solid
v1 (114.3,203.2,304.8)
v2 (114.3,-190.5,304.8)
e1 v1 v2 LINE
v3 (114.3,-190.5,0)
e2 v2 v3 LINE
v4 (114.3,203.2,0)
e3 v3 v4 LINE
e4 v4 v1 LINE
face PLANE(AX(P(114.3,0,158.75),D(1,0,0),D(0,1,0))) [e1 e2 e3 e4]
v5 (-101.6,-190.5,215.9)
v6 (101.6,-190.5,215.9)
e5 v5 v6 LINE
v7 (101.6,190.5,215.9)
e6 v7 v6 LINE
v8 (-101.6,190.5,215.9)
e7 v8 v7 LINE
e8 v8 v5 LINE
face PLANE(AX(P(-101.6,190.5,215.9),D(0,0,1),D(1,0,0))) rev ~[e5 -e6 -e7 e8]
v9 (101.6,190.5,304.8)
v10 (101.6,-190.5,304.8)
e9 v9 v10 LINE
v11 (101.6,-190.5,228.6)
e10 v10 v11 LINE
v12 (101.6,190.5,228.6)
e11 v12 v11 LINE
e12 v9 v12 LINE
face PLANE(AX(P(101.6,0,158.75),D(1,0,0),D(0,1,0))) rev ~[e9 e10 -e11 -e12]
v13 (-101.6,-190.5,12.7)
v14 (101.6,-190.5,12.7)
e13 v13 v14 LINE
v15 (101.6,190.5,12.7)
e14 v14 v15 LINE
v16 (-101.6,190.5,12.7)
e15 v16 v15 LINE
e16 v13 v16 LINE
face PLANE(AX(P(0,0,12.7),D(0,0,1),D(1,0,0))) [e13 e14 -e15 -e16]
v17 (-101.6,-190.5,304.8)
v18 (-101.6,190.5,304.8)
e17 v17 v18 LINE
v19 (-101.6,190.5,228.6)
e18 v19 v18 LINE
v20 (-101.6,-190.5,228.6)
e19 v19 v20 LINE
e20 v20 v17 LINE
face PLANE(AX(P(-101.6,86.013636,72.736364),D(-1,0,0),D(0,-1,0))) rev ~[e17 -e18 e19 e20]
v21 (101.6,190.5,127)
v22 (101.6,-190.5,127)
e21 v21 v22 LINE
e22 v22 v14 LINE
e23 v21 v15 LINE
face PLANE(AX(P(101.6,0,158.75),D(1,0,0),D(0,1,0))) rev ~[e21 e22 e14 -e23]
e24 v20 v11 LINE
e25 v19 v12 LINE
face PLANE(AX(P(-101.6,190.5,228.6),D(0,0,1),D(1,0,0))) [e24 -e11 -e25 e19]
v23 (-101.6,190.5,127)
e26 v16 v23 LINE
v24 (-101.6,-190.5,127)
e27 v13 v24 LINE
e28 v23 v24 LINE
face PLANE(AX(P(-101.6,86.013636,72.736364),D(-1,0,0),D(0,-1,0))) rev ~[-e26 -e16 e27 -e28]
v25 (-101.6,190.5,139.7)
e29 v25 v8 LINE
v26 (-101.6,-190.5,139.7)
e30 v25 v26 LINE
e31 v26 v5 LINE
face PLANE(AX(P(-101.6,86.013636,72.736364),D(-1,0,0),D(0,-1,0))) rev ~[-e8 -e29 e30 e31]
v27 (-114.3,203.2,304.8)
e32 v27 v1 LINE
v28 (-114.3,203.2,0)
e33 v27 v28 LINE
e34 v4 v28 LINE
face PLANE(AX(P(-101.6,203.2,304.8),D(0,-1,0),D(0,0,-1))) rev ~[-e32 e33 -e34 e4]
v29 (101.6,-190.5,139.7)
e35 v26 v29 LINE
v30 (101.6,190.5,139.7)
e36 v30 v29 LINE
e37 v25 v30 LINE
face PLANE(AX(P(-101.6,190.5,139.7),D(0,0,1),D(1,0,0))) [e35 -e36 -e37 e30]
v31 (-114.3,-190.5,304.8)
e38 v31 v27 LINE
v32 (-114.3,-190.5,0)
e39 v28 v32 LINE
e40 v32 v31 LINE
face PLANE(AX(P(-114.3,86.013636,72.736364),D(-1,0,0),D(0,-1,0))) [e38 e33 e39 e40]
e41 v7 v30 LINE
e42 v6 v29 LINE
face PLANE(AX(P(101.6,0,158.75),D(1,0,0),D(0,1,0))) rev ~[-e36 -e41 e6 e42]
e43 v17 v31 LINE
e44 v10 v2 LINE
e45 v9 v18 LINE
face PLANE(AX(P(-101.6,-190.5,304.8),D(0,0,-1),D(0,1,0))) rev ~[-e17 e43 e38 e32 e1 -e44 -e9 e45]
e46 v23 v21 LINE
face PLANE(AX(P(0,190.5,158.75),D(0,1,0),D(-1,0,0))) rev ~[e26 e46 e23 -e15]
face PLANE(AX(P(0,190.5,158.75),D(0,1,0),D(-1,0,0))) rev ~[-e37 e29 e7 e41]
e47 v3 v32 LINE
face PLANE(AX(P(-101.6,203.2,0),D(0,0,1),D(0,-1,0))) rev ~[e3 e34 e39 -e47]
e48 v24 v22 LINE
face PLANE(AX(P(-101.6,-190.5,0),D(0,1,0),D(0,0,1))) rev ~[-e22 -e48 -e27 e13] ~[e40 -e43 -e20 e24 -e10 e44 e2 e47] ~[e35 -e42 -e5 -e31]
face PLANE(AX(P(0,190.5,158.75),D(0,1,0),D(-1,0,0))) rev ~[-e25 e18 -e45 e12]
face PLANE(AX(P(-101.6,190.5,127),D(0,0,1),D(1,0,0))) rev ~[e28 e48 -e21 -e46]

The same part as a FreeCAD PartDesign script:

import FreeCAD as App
import Part
import Sketcher
from FreeCAD import Vector
Q = App.Units.Quantity

doc = App.newDocument("Part")
body = doc.addObject("PartDesign::Body", "Body")

sketch1 = body.newObject("Sketcher::SketchObject", "Sketch")
sketch1.AttachmentSupport = (doc.getObject("XY_Plane"), [""])
sketch1.MapMode = "FlatFace"
sketch1.addGeometry(Part.LineSegment(Vector(-102, 190, 0), Vector(-102, -190, 0)), False)
sketch1.addGeometry(Part.LineSegment(Vector(-102, -190, 0), Vector(102, -190, 0)), False)
sketch1.addGeometry(Part.LineSegment(Vector(102, -190, 0), Vector(102, 190, 0)), False)
sketch1.addGeometry(Part.LineSegment(Vector(102, 190, 0), Vector(-102, 190, 0)), False)
sketch1.addConstraint(Sketcher.Constraint("Coincident", 0, 2, 1, 1))
sketch1.addConstraint(Sketcher.Constraint("Coincident", 1, 2, 2, 1))
sketch1.addConstraint(Sketcher.Constraint("Coincident", 2, 2, 3, 1))
sketch1.addConstraint(Sketcher.Constraint("Coincident", 3, 2, 0, 1))
sketch1.addConstraint(Sketcher.Constraint("Vertical", 0))
sketch1.addConstraint(Sketcher.Constraint("Horizontal", 1))
sketch1.addConstraint(Sketcher.Constraint("Vertical", 2))
sketch1.addConstraint(Sketcher.Constraint("Horizontal", 3))
sketch1.addConstraint(Sketcher.Constraint("Symmetric", 0, 2, 2, 2, -1, 1))
sketch1.addConstraint(Sketcher.Constraint("DistanceX", 1, 1, 1, 2, Q("8 in")))
sketch1.addConstraint(Sketcher.Constraint("DistanceY", 0, 2, 0, 1, Q("15 in")))
pad1 = body.newObject("PartDesign::Pad", "Pad")
pad1.Profile = sketch1
pad1.Length = Q("0.5 in")

sketch2 = body.newObject("Sketcher::SketchObject", "Sketch001")
sketch2.AttachmentSupport = (doc.getObject("XZ_Plane"), [""])
sketch2.MapMode = "FlatFace"
sketch2.AttachmentOffset = App.Placement(Vector(0, 0, -7.5 * 25.4), App.Rotation())
sketch2.addGeometry(Part.LineSegment(Vector(102, 305, 0), Vector(102, 0, 0)), False)
sketch2.addGeometry(Part.LineSegment(Vector(102, 0, 0), Vector(-102, 0, 0)), False)
sketch2.addGeometry(Part.LineSegment(Vector(-102, 0, 0), Vector(-102, 305, 0)), False)
sketch2.addGeometry(Part.LineSegment(Vector(-102, 305, 0), Vector(102, 305, 0)), False)
sketch2.addConstraint(Sketcher.Constraint("Coincident", 0, 2, 1, 1))
sketch2.addConstraint(Sketcher.Constraint("Coincident", 1, 2, 2, 1))
sketch2.addConstraint(Sketcher.Constraint("Coincident", 2, 2, 3, 1))
sketch2.addConstraint(Sketcher.Constraint("Coincident", 3, 2, 0, 1))
sketch2.addConstraint(Sketcher.Constraint("Vertical", 0))
sketch2.addConstraint(Sketcher.Constraint("Horizontal", 1))
sketch2.addConstraint(Sketcher.Constraint("Vertical", 2))
sketch2.addConstraint(Sketcher.Constraint("Horizontal", 3))
sketch2.addConstraint(Sketcher.Constraint("Symmetric", 0, 2, 1, 2, -1, 1))
sketch2.addConstraint(Sketcher.Constraint("DistanceX", 1, 2, 1, 1, Q("8 in")))
sketch2.addConstraint(Sketcher.Constraint("DistanceY", 0, 2, 0, 1, Q("12 in")))
pad2 = body.newObject("PartDesign::Pad", "Pad001")
pad2.Profile = sketch2
pad2.Length = Q("0.5 in")
pad2.Reversed = True

sketch3 = body.newObject("Sketcher::SketchObject", "Sketch002")
sketch3.AttachmentSupport = (doc.getObject("YZ_Plane"), [""])
sketch3.MapMode = "FlatFace"
sketch3.AttachmentOffset = App.Placement(Vector(0, 0, 4 * 25.4), App.Rotation())
sketch3.addGeometry(Part.LineSegment(Vector(-190, 305, 0), Vector(-190, 0, 0)), False)
sketch3.addGeometry(Part.LineSegment(Vector(-190, 0, 0), Vector(203, 0, 0)), False)
sketch3.addGeometry(Part.LineSegment(Vector(203, 0, 0), Vector(203, 305, 0)), False)
sketch3.addGeometry(Part.LineSegment(Vector(203, 305, 0), Vector(-190, 305, 0)), False)
sketch3.addConstraint(Sketcher.Constraint("Coincident", 0, 2, 1, 1))
sketch3.addConstraint(Sketcher.Constraint("Coincident", 1, 2, 2, 1))
sketch3.addConstraint(Sketcher.Constraint("Coincident", 2, 2, 3, 1))
sketch3.addConstraint(Sketcher.Constraint("Coincident", 3, 2, 0, 1))
sketch3.addConstraint(Sketcher.Constraint("Vertical", 0))
sketch3.addConstraint(Sketcher.Constraint("Horizontal", 1))
sketch3.addConstraint(Sketcher.Constraint("Vertical", 2))
sketch3.addConstraint(Sketcher.Constraint("Horizontal", 3))
sketch3.addConstraint(Sketcher.Constraint("PointOnObject", 0, 2, -1))
sketch3.addConstraint(Sketcher.Constraint("DistanceY", 0, 2, 0, 1, Q("12 in")))
sketch3.addConstraint(Sketcher.Constraint("DistanceX", 1, 1, 1, 2, Q("15.5 in")))
sketch3.addConstraint(Sketcher.Constraint("DistanceX", -1, 1, 1, 2, Q("8 in")))
pad3 = body.newObject("PartDesign::Pad", "Pad002")
pad3.Profile = sketch3
pad3.Length = Q("0.5 in")

sketch4 = body.newObject("Sketcher::SketchObject", "Sketch003")
sketch4.AttachmentSupport = (doc.getObject("YZ_Plane"), [""])
sketch4.MapMode = "FlatFace"
sketch4.AttachmentOffset = App.Placement(Vector(0, 0, -4 * 25.4), App.Rotation())
sketch4.addGeometry(Part.LineSegment(Vector(203, 305, 0), Vector(203, 0, 0)), False)
sketch4.addGeometry(Part.LineSegment(Vector(203, 0, 0), Vector(-190, 0, 0)), False)
sketch4.addGeometry(Part.LineSegment(Vector(-190, 0, 0), Vector(-190, 305, 0)), False)
sketch4.addGeometry(Part.LineSegment(Vector(-190, 305, 0), Vector(203, 305, 0)), False)
sketch4.addConstraint(Sketcher.Constraint("Coincident", 0, 2, 1, 1))
sketch4.addConstraint(Sketcher.Constraint("Coincident", 1, 2, 2, 1))
sketch4.addConstraint(Sketcher.Constraint("Coincident", 2, 2, 3, 1))
sketch4.addConstraint(Sketcher.Constraint("Coincident", 3, 2, 0, 1))
sketch4.addConstraint(Sketcher.Constraint("Vertical", 0))
sketch4.addConstraint(Sketcher.Constraint("Horizontal", 1))
sketch4.addConstraint(Sketcher.Constraint("Vertical", 2))
sketch4.addConstraint(Sketcher.Constraint("Horizontal", 3))
sketch4.addConstraint(Sketcher.Constraint("PointOnObject", 0, 2, -1))
sketch4.addConstraint(Sketcher.Constraint("DistanceY", 0, 2, 0, 1, Q("12 in")))
sketch4.addConstraint(Sketcher.Constraint("DistanceX", 1, 2, 1, 1, Q("15.5 in")))
sketch4.addConstraint(Sketcher.Constraint("DistanceX", -1, 1, 0, 2, Q("8 in")))
pad4 = body.newObject("PartDesign::Pad", "Pad003")
pad4.Profile = sketch4
pad4.Length = Q("0.5 in")
pad4.Reversed = True

sketch5 = body.newObject("Sketcher::SketchObject", "Sketch004")
sketch5.AttachmentSupport = (doc.getObject("XZ_Plane"), [""])
sketch5.MapMode = "FlatFace"
sketch5.AttachmentOffset = App.Placement(Vector(0, 0, -7.5 * 25.4), App.Rotation())
sketch5.addGeometry(Part.LineSegment(Vector(-102, 229, 0), Vector(-102, 216, 0)), False)
sketch5.addGeometry(Part.LineSegment(Vector(-102, 216, 0), Vector(102, 216, 0)), False)
sketch5.addGeometry(Part.LineSegment(Vector(102, 216, 0), Vector(102, 229, 0)), False)
sketch5.addGeometry(Part.LineSegment(Vector(102, 229, 0), Vector(-102, 229, 0)), False)
sketch5.addConstraint(Sketcher.Constraint("Coincident", 0, 2, 1, 1))
sketch5.addConstraint(Sketcher.Constraint("Coincident", 1, 2, 2, 1))
sketch5.addConstraint(Sketcher.Constraint("Coincident", 2, 2, 3, 1))
sketch5.addConstraint(Sketcher.Constraint("Coincident", 3, 2, 0, 1))
sketch5.addConstraint(Sketcher.Constraint("Vertical", 0))
sketch5.addConstraint(Sketcher.Constraint("Horizontal", 1))
sketch5.addConstraint(Sketcher.Constraint("Vertical", 2))
sketch5.addConstraint(Sketcher.Constraint("Horizontal", 3))
sketch5.addConstraint(Sketcher.Constraint("DistanceX", 1, 1, 1, 2, Q("8 in")))
sketch5.addConstraint(Sketcher.Constraint("DistanceY", 0, 2, 0, 1, Q("0.5 in")))
sketch5.addConstraint(Sketcher.Constraint("DistanceX", 0, 2, -1, 1, Q("4 in")))
sketch5.addConstraint(Sketcher.Constraint("DistanceY", -1, 1, 2, 2, Q("9 in")))
pad5 = body.newObject("PartDesign::Pad", "Pad004")
pad5.Profile = sketch5
pad5.Length = Q("15 in")

sketch6 = body.newObject("Sketcher::SketchObject", "Sketch005")
sketch6.AttachmentSupport = (doc.getObject("XZ_Plane"), [""])
sketch6.MapMode = "FlatFace"
sketch6.AttachmentOffset = App.Placement(Vector(0, 0, -7.5 * 25.4), App.Rotation())
sketch6.addGeometry(Part.LineSegment(Vector(-102, 140, 0), Vector(-102, 127, 0)), False)
sketch6.addGeometry(Part.LineSegment(Vector(-102, 127, 0), Vector(102, 127, 0)), False)
sketch6.addGeometry(Part.LineSegment(Vector(102, 127, 0), Vector(102, 140, 0)), False)
sketch6.addGeometry(Part.LineSegment(Vector(102, 140, 0), Vector(-102, 140, 0)), False)
sketch6.addConstraint(Sketcher.Constraint("Coincident", 0, 2, 1, 1))
sketch6.addConstraint(Sketcher.Constraint("Coincident", 1, 2, 2, 1))
sketch6.addConstraint(Sketcher.Constraint("Coincident", 2, 2, 3, 1))
sketch6.addConstraint(Sketcher.Constraint("Coincident", 3, 2, 0, 1))
sketch6.addConstraint(Sketcher.Constraint("Vertical", 0))
sketch6.addConstraint(Sketcher.Constraint("Horizontal", 1))
sketch6.addConstraint(Sketcher.Constraint("Vertical", 2))
sketch6.addConstraint(Sketcher.Constraint("Horizontal", 3))
sketch6.addConstraint(Sketcher.Constraint("DistanceX", 1, 1, 1, 2, Q("8 in")))
sketch6.addConstraint(Sketcher.Constraint("DistanceY", 0, 2, 0, 1, Q("0.5 in")))
sketch6.addConstraint(Sketcher.Constraint("DistanceX", 0, 2, -1, 1, Q("4 in")))
sketch6.addConstraint(Sketcher.Constraint("DistanceY", -1, 1, 0, 2, Q("5 in")))
pad6 = body.newObject("PartDesign::Pad", "Pad005")
pad6.Profile = sketch6
pad6.Length = Q("15 in")

doc.recompute()
